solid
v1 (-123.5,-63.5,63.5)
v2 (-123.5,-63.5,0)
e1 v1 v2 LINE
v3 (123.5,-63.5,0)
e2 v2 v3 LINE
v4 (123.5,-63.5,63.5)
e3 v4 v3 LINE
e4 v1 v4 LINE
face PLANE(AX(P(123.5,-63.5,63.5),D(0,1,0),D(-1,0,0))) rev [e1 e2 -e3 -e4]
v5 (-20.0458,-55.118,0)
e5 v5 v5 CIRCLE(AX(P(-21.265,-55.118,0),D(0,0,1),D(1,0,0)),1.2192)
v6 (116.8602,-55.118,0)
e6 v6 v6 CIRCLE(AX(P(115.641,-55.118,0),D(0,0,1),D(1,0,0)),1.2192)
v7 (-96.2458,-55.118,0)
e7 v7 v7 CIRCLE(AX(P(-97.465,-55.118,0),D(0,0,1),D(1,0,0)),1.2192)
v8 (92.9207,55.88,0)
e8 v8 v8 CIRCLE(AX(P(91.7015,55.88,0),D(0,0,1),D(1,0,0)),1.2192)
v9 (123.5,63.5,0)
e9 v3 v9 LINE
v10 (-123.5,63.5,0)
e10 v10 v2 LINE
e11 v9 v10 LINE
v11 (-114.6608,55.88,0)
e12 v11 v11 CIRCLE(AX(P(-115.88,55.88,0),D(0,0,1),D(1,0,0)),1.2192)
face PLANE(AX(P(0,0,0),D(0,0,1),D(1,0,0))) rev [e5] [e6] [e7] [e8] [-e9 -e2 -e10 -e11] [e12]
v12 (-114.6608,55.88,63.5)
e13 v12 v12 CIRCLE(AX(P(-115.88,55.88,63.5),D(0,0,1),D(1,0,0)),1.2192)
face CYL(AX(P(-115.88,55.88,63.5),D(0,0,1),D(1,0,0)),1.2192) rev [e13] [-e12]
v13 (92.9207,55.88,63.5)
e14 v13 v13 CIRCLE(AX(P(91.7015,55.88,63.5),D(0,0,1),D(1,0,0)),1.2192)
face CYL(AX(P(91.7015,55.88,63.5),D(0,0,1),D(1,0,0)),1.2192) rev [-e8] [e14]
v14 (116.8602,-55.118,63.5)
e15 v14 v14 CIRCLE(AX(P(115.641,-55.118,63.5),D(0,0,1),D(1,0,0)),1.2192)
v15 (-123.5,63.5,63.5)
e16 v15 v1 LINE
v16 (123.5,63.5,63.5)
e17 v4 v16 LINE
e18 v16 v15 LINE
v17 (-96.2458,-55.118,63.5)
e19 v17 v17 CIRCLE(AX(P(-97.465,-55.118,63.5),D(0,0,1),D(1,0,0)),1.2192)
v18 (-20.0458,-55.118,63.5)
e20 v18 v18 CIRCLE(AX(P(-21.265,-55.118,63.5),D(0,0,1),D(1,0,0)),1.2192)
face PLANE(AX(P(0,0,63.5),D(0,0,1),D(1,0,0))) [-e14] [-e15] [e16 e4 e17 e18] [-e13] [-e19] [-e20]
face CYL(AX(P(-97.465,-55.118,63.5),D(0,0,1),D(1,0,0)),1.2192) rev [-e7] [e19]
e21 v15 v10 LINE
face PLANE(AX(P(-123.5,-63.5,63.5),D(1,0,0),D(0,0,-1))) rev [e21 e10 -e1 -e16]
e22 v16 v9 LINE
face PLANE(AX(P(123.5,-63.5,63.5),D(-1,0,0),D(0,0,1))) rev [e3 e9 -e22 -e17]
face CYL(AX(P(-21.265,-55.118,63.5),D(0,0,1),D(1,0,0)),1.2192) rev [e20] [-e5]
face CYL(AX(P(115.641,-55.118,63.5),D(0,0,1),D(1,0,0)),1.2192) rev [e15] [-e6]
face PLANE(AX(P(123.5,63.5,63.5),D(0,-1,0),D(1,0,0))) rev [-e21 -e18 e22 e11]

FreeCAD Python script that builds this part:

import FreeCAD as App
import Part
import Sketcher

V = App.Vector
Q = App.Units.Quantity

doc = App.newDocument("Part")
body = doc.addObject("PartDesign::Body", "Body")

sketch1 = doc.addObject("Sketcher::SketchObject", "Sketch")
body.addObject(sketch1)
sketch1.AttachmentSupport = (doc.XY_Plane, [""])
sketch1.MapMode = "FlatFace"
sketch1.addGeometry(Part.LineSegment(V(-123.5, 63.5, 0), V(-123.5, -63.5, 0)), False)
sketch1.addGeometry(Part.LineSegment(V(-123.5, -63.5, 0), V(123.5, -63.5, 0)), False)
sketch1.addGeometry(Part.LineSegment(V(123.5, -63.5, 0), V(123.5, 63.5, 0)), False)
sketch1.addGeometry(Part.LineSegment(V(123.5, 63.5, 0), V(-123.5, 63.5, 0)), False)
sketch1.addConstraint(Sketcher.Constraint("Coincident", 0, 2, 1, 1))
sketch1.addConstraint(Sketcher.Constraint("Coincident", 1, 2, 2, 1))
sketch1.addConstraint(Sketcher.Constraint("Coincident", 2, 2, 3, 1))
sketch1.addConstraint(Sketcher.Constraint("Coincident", 3, 2, 0, 1))
sketch1.addConstraint(Sketcher.Constraint("Vertical", 0))
sketch1.addConstraint(Sketcher.Constraint("Horizontal", 1))
sketch1.addConstraint(Sketcher.Constraint("Vertical", 2))
sketch1.addConstraint(Sketcher.Constraint("Horizontal", 3))
sketch1.addConstraint(Sketcher.Constraint("Symmetric", 0, 2, 2, 2, -1, 1))
sketch1.addConstraint(Sketcher.Constraint("DistanceY", 0, 2, 0, 1, Q("5 in")))
sketch1.addConstraint(Sketcher.Constraint("DistanceX", 1, 1, 1, 2, 247.0))
pad1 = doc.addObject("PartDesign::Pad", "Pad")
body.addObject(pad1)
pad1.Profile = sketch1
pad1.Length = Q("2.5 in")

sketch2 = doc.addObject("Sketcher::SketchObject", "Sketch001")
body.addObject(sketch2)
sketch2.AttachmentSupport = (doc.XY_Plane, [""])
sketch2.MapMode = "FlatFace"
sketch2.AttachmentOffset = App.Placement(V(0, 0, 2.5 * 25.4), App.Rotation())
sketch2.addGeometry(Part.Circle(V(-115.88, 55.88, 0), V(0, 0, 1), 1.2192), False)
sketch2.addGeometry(Part.Circle(V(-97.465, -55.118, 0), V(0, 0, 1), 1.2192), False)
sketch2.addGeometry(Part.Circle(V(-21.265, -55.118, 0), V(0, 0, 1), 1.2192), False)
sketch2.addGeometry(Part.Circle(V(115.641, -55.118, 0), V(0, 0, 1), 1.2192), False)
sketch2.addGeometry(Part.Circle(V(91.7015, 55.88, 0), V(0, 0, 1), 1.2192), False)
sketch2.addConstraint(Sketcher.Constraint("Equal", 0, 1))
sketch2.addConstraint(Sketcher.Constraint("Equal", 1, 2))
sketch2.addConstraint(Sketcher.Constraint("Equal", 2, 3))
sketch2.addConstraint(Sketcher.Constraint("Equal", 3, 4))
sketch2.addConstraint(Sketcher.Constraint("Horizontal", 1, 3, 2, 3))
sketch2.addConstraint(Sketcher.Constraint("Horizontal", 2, 3, 3, 3))
sketch2.addConstraint(Sketcher.Constraint("Horizontal", 0, 3, 4, 3))
sketch2.addConstraint(Sketcher.Constraint("Diameter", 0, Q("0.096 in")))
sketch2.addConstraint(Sketcher.Constraint("DistanceX", 1, 3, 2, 3, Q("3 in")))
sketch2.addConstraint(Sketcher.Constraint("DistanceY", -1, 1, 0, 3, Q("2.2 in")))
sketch2.addConstraint(Sketcher.Constraint("DistanceY", 1, 3, -1, 1, Q("2.17 in")))
sketch2.addConstraint(Sketcher.Constraint("DistanceX", 2, 3, 3, 3, Q("5.39 in")))
sketch2.addConstraint(Sketcher.Constraint("DistanceX", 0, 3, 1, 3, Q("0.725 in")))
sketch2.addConstraint(Sketcher.Constraint("DistanceX", 4, 3, 3, 3, Q("0.9425 in")))
sketch2.addConstraint(Sketcher.Constraint("DistanceX", 0, 3, -1, 1, 115.88))
doc.recompute()
hole = doc.addObject("PartDesign::Hole", "Hole")
body.addObject(hole)
hole.Profile = sketch2
hole.ThreadType = "None"
hole.Diameter = Q("0.096 in")
hole.DepthType = "ThroughAll"

doc.recompute()
